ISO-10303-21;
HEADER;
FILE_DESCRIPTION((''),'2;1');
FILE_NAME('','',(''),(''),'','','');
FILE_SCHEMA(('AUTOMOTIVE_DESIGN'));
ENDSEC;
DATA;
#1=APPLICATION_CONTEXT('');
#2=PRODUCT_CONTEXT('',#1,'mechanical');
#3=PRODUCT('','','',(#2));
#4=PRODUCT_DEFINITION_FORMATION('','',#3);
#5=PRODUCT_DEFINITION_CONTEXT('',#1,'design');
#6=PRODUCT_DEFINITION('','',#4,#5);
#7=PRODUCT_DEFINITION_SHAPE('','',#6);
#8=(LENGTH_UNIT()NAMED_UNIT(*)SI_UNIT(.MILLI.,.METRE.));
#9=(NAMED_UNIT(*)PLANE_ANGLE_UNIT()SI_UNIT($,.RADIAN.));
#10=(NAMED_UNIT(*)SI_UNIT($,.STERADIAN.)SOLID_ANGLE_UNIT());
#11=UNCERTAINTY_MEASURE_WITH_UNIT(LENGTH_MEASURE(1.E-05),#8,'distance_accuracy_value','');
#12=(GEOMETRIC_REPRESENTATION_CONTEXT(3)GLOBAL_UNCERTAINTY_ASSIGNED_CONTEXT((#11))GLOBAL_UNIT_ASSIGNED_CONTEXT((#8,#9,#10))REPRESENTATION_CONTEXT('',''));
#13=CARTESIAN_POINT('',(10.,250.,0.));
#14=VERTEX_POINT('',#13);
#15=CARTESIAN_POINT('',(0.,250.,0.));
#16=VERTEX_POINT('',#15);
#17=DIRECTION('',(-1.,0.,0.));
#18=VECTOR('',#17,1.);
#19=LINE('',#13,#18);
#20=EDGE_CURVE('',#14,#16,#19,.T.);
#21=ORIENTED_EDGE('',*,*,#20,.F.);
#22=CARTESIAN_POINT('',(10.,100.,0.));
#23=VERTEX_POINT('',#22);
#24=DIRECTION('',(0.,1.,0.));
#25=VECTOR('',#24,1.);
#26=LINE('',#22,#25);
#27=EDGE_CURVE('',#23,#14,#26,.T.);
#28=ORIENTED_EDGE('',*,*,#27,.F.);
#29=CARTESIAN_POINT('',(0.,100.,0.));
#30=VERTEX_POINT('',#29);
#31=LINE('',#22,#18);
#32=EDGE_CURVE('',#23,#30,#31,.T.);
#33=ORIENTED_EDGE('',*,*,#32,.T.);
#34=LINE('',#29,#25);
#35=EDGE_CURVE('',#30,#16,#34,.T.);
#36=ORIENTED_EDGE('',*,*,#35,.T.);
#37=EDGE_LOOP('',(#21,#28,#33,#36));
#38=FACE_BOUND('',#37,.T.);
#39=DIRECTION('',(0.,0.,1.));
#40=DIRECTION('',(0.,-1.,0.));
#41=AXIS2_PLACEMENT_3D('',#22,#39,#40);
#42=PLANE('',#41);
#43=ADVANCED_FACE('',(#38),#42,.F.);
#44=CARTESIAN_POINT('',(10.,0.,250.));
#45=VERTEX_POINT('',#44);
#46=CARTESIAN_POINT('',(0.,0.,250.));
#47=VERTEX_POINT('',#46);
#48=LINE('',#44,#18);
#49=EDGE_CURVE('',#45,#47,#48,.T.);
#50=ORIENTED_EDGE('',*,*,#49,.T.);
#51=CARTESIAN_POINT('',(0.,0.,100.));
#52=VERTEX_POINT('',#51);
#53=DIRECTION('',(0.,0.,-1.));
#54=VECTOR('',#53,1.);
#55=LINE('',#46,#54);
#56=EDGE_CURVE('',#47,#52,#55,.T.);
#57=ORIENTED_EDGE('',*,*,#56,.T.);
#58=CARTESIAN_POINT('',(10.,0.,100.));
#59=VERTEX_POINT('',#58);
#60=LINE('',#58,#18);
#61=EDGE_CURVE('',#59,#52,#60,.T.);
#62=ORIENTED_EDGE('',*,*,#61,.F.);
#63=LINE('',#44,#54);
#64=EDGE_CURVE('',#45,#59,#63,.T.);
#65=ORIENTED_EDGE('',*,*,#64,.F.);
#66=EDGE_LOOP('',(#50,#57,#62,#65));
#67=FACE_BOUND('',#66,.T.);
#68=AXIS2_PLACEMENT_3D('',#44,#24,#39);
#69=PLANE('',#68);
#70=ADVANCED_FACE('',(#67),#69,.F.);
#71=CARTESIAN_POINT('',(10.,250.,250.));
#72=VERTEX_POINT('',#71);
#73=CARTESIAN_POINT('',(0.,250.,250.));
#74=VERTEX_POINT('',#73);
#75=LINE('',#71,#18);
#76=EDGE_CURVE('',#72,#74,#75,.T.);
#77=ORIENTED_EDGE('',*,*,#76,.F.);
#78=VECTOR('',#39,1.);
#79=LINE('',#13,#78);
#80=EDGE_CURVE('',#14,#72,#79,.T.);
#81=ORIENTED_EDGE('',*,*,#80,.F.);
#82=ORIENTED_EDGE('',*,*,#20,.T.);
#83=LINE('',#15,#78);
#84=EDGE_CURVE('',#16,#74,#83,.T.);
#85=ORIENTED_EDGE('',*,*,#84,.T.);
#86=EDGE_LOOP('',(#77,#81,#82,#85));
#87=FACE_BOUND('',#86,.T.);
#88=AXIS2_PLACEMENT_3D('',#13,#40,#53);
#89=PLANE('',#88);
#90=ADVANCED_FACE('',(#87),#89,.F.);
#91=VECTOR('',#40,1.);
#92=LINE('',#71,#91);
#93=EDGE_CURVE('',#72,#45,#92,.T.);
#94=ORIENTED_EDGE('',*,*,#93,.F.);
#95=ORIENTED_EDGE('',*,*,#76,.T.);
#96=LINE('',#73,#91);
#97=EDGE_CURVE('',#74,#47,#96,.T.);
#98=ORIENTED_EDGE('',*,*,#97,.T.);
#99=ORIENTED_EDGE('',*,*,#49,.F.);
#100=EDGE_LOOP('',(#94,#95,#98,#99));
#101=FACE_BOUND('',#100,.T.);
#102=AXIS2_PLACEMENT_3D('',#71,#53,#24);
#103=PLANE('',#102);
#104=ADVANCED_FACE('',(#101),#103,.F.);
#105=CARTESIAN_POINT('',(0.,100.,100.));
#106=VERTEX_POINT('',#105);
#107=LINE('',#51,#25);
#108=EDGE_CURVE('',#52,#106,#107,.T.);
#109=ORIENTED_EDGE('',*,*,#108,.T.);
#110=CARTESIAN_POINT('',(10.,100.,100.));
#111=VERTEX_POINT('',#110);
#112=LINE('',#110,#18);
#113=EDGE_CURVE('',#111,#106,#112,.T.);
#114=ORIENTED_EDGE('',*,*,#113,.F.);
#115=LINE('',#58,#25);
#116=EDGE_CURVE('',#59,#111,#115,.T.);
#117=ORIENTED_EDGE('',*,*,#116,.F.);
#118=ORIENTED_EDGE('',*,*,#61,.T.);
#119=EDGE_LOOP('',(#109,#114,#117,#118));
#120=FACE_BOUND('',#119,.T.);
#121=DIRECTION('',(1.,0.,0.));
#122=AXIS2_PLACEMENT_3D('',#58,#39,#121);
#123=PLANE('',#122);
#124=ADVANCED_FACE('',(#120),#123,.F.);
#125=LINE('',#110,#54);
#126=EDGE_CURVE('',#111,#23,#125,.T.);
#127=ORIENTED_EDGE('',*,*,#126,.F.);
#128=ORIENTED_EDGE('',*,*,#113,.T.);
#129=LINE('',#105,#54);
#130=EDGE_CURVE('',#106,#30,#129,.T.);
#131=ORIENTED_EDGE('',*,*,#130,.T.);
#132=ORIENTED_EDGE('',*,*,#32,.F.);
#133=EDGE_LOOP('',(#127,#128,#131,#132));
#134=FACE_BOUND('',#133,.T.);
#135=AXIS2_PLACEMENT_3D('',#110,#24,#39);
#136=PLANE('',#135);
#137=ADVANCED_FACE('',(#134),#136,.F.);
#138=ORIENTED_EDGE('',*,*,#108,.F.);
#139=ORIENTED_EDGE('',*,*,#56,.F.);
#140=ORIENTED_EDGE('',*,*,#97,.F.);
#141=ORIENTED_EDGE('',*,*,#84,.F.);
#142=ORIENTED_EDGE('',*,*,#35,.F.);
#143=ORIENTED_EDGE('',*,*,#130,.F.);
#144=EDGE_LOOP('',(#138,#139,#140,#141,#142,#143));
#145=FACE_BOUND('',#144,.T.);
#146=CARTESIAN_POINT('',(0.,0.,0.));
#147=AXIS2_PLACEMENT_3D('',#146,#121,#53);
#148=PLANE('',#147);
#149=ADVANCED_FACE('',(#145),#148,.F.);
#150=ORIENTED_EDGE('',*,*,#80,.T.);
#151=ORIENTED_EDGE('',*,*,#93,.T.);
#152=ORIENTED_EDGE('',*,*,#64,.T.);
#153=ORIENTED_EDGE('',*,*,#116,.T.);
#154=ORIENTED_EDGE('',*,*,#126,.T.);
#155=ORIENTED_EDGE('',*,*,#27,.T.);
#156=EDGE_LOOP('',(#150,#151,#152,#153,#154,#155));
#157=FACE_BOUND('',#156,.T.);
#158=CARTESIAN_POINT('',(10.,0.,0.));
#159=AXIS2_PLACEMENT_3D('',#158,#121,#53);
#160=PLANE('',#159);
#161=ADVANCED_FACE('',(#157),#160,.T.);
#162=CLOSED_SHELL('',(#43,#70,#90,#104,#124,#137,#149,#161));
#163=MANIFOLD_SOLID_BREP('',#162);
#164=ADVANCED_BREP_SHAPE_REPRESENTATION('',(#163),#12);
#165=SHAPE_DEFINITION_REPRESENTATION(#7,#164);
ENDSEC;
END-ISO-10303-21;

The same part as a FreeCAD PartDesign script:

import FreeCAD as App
import Part
import Sketcher
from FreeCAD import Vector
Q = App.Units.Quantity

doc = App.newDocument("Part")
body = doc.addObject("PartDesign::Body", "Body")

sketch1 = doc.addObject("Sketcher::SketchObject", "Sketch")
body.addObject(sketch1)
sketch1.AttachmentSupport = (doc.YZ_Plane, [""])
sketch1.MapMode = "FlatFace"
sketch1.addGeometry([
    Part.LineSegment(Vector(0, 100, 0), Vector(100, 100, 0)),
    Part.LineSegment(Vector(100, 100, 0), Vector(100, 0, 0)),
    Part.LineSegment(Vector(100, 0, 0), Vector(250, 0, 0)),
    Part.LineSegment(Vector(250, 0, 0), Vector(250, 250, 0)),
    Part.LineSegment(Vector(250, 250, 0), Vector(0, 250, 0)),
    Part.LineSegment(Vector(0, 250, 0), Vector(0, 100, 0)),
], False)
sketch1.addConstraint([
    Sketcher.Constraint("Coincident", 0, 2, 1, 1),
    Sketcher.Constraint("Coincident", 1, 2, 2, 1),
    Sketcher.Constraint("Coincident", 2, 2, 3, 1),
    Sketcher.Constraint("Coincident", 3, 2, 4, 1),
    Sketcher.Constraint("Coincident", 4, 2, 5, 1),
    Sketcher.Constraint("Coincident", 5, 2, 0, 1),
    Sketcher.Constraint("Horizontal", 0),
    Sketcher.Constraint("Vertical", 1),
    Sketcher.Constraint("Horizontal", 2),
    Sketcher.Constraint("Vertical", 3),
    Sketcher.Constraint("Horizontal", 4),
    Sketcher.Constraint("Vertical", 5),
    Sketcher.Constraint("PointOnObject", 1, 2, -1),
    Sketcher.Constraint("PointOnObject", 4, 2, -2),
    Sketcher.Constraint("Equal", 0, 1),
    Sketcher.Constraint("Equal", 4, 3),
    Sketcher.Constraint("DistanceX", 0, 1, 0, 2, Q("100 mm")),
    Sketcher.Constraint("DistanceX", 2, 1, 2, 2, Q("150 mm")),
])
pad1 = doc.addObject("PartDesign::Pad", "Pad")
body.addObject(pad1)
pad1.Profile = sketch1
pad1.Length = 10

doc.recompute()
